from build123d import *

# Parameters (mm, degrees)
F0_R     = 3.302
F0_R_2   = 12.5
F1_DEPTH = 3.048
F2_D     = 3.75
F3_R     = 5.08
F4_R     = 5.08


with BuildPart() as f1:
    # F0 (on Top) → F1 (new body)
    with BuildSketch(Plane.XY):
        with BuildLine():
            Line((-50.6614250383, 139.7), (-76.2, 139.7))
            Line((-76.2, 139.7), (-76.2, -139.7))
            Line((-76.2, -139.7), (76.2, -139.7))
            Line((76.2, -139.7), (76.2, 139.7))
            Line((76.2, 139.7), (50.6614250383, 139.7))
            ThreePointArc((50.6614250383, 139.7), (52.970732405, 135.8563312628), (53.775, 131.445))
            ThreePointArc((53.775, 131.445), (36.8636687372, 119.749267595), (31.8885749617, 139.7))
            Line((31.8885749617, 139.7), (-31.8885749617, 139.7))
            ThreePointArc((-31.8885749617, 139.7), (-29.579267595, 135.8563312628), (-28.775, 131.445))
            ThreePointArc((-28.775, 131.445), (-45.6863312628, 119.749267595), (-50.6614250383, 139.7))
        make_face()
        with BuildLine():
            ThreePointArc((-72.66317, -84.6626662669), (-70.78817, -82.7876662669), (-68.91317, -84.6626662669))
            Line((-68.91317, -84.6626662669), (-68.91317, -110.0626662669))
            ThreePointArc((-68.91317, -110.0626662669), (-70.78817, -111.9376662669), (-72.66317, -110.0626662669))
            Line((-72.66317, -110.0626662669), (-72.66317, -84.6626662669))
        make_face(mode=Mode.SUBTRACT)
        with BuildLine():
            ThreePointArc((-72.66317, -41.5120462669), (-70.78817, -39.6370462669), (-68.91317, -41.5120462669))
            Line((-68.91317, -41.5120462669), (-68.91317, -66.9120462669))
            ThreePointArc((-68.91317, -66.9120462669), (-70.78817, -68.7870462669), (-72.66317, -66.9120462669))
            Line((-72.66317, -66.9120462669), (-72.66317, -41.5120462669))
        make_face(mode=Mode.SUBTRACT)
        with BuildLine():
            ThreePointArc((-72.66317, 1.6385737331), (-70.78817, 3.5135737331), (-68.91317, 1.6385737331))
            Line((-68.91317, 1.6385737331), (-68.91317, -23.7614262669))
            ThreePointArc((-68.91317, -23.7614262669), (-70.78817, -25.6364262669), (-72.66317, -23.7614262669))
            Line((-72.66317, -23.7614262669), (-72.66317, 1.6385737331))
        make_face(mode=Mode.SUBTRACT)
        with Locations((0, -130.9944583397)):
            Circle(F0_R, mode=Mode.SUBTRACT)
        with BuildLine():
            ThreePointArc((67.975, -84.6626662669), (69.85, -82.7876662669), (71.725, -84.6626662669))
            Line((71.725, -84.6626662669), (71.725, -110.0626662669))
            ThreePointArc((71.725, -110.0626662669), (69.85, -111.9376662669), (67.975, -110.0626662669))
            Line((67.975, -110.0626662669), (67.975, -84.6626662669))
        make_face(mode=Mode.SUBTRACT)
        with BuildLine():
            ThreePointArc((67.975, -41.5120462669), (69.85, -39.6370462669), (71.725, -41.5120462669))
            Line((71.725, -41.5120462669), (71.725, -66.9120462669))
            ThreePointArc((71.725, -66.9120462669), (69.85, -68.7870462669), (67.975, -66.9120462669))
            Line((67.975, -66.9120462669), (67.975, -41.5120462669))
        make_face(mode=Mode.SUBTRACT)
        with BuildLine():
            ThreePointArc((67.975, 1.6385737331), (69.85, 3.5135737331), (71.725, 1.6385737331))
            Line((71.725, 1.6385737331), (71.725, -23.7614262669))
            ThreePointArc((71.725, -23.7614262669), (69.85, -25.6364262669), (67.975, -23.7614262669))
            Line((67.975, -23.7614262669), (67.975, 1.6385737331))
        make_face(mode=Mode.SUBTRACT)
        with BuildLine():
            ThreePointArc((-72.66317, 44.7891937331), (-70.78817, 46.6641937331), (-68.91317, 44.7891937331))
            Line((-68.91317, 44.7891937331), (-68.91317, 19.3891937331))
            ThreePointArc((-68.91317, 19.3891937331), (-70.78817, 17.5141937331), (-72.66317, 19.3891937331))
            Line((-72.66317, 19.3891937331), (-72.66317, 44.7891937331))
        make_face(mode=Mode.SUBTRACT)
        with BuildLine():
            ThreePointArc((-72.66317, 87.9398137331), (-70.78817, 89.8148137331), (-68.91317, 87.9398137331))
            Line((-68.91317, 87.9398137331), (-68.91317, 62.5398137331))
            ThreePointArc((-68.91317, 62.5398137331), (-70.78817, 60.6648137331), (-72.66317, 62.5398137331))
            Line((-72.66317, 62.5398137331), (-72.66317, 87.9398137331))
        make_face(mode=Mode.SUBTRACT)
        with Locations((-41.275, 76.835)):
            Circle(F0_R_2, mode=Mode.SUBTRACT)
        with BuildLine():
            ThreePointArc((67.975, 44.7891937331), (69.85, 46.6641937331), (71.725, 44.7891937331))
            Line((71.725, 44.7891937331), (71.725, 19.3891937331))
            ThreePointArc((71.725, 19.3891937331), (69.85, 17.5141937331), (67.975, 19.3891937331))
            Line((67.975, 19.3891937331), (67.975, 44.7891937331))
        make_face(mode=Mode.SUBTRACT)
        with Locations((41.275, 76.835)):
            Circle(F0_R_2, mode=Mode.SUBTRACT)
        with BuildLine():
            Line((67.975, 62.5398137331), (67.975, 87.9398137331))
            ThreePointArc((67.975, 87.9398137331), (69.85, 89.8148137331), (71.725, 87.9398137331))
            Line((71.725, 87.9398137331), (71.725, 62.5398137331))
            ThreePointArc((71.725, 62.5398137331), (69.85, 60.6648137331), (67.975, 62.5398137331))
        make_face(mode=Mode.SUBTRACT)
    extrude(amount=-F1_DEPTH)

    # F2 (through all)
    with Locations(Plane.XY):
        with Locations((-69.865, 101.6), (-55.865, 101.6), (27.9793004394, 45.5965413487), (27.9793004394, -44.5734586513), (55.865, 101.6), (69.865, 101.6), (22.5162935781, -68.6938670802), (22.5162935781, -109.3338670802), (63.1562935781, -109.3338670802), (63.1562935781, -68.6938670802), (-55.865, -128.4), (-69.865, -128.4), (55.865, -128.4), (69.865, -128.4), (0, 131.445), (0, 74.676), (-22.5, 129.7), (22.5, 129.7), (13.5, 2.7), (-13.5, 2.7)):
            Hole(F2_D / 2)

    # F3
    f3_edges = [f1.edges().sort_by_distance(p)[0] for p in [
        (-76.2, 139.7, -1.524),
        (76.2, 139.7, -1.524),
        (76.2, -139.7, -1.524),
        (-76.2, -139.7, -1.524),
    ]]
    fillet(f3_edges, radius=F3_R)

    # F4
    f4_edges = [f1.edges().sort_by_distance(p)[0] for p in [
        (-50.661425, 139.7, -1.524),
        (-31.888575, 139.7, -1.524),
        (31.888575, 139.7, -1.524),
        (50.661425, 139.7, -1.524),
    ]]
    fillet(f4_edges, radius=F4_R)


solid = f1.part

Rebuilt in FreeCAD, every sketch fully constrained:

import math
import FreeCAD as App
import Part
import Sketcher
Q = App.Units.Quantity


def edges_at(feature, points):
    """Names of the edges that pass closest to the given points."""
    edges = feature.Shape.Edges
    near = lambda p: min(range(len(edges)), key=lambda i: edges[i].distToShape(Part.Vertex(*p))[0])
    return sorted({f"Edge{near(p) + 1}" for p in points})

doc = App.newDocument("Part")
body = doc.addObject("PartDesign::Body", "Body")

# Sketch on XY plane
sketch1 = body.newObject("Sketcher::SketchObject", "Sketch")
sketch1.AttachmentSupport = (doc.getObject("XY_Plane"), [""])
sketch1.MapMode = "FlatFace"
sketch1.addGeometry([
    Part.LineSegment(App.Vector(-50.7, 139.7, 0), App.Vector(-76.2, 139.7, 0)),  # 0
    Part.LineSegment(App.Vector(-76.2, 139.7, 0), App.Vector(-76.2, -139.7, 0)),  # 1
    Part.LineSegment(App.Vector(-76.2, -139.7, 0), App.Vector(76.2, -139.7, 0)),  # 2
    Part.LineSegment(App.Vector(76.2, -139.7, 0), App.Vector(76.2, 139.7, 0)),  # 3
    Part.LineSegment(App.Vector(76.2, 139.7, 0), App.Vector(50.7, 139.7, 0)),  # 4
    Part.ArcOfCircle(Part.Circle(App.Vector(41.3, 131.4, 0), App.Vector(0, 0, 1), 12.5), math.radians(0), math.radians(41)),  # 5
    Part.ArcOfCircle(Part.Circle(App.Vector(41.3, 131.4, 0), App.Vector(0, 0, 1), 12.5), math.radians(139), math.radians(360)),  # 6
    Part.LineSegment(App.Vector(31.9, 139.7, 0), App.Vector(-31.9, 139.7, 0)),  # 7
    Part.ArcOfCircle(Part.Circle(App.Vector(-41.3, 131.4, 0), App.Vector(0, 0, 1), 12.5), math.radians(0), math.radians(41)),  # 8
    Part.ArcOfCircle(Part.Circle(App.Vector(-41.3, 131.4, 0), App.Vector(0, 0, 1), 12.5), math.radians(139), math.radians(360)),  # 9
    Part.LineSegment(App.Vector(-72.7, -110.1, 0), App.Vector(-72.7, -84.7, 0)),  # 10
    Part.ArcOfCircle(Part.Circle(App.Vector(-70.8, -84.7, 0), App.Vector(0, 0, 1), 1.9), math.radians(0), math.radians(180)),  # 11
    Part.LineSegment(App.Vector(-68.9, -84.7, 0), App.Vector(-68.9, -110.1, 0)),  # 12
    Part.ArcOfCircle(Part.Circle(App.Vector(-70.8, -110.1, 0), App.Vector(0, 0, 1), 1.9), math.radians(180), math.radians(360)),  # 13
    Part.LineSegment(App.Vector(-72.7, -66.9, 0), App.Vector(-72.7, -41.5, 0)),  # 14
    Part.ArcOfCircle(Part.Circle(App.Vector(-70.8, -41.5, 0), App.Vector(0, 0, 1), 1.9), math.radians(0), math.radians(180)),  # 15
    Part.LineSegment(App.Vector(-68.9, -41.5, 0), App.Vector(-68.9, -66.9, 0)),  # 16
    Part.ArcOfCircle(Part.Circle(App.Vector(-70.8, -66.9, 0), App.Vector(0, 0, 1), 1.9), math.radians(180), math.radians(360)),  # 17
    Part.Circle(App.Vector(0, -131, 0), App.Vector(0, 0, 1), 3.3),  # 18
    Part.LineSegment(App.Vector(68, -110.1, 0), App.Vector(68, -84.7, 0)),  # 19
    Part.ArcOfCircle(Part.Circle(App.Vector(69.8, -84.7, 0), App.Vector(0, 0, 1), 1.9), math.radians(0), math.radians(180)),  # 20
    Part.LineSegment(App.Vector(71.7, -84.7, 0), App.Vector(71.7, -110.1, 0)),  # 21
    Part.ArcOfCircle(Part.Circle(App.Vector(69.8, -110.1, 0), App.Vector(0, 0, 1), 1.9), math.radians(180), math.radians(360)),  # 22
    Part.LineSegment(App.Vector(68, -66.9, 0), App.Vector(68, -41.5, 0)),  # 23
    Part.ArcOfCircle(Part.Circle(App.Vector(69.8, -41.5, 0), App.Vector(0, 0, 1), 1.9), math.radians(0), math.radians(180)),  # 24
    Part.LineSegment(App.Vector(71.7, -41.5, 0), App.Vector(71.7, -66.9, 0)),  # 25
    Part.ArcOfCircle(Part.Circle(App.Vector(69.8, -66.9, 0), App.Vector(0, 0, 1), 1.9), math.radians(180), math.radians(360)),  # 26
    Part.LineSegment(App.Vector(-72.7, -23.8, 0), App.Vector(-72.7, 1.6, 0)),  # 27
    Part.ArcOfCircle(Part.Circle(App.Vector(-70.8, 1.6, 0), App.Vector(0, 0, 1), 1.9), math.radians(0), math.radians(180)),  # 28
    Part.LineSegment(App.Vector(-68.9, 1.6, 0), App.Vector(-68.9, -23.8, 0)),  # 29
    Part.ArcOfCircle(Part.Circle(App.Vector(-70.8, -23.8, 0), App.Vector(0, 0, 1), 1.9), math.radians(180), math.radians(360)),  # 30
    Part.LineSegment(App.Vector(-72.7, 19.4, 0), App.Vector(-72.7, 44.8, 0)),  # 31
    Part.ArcOfCircle(Part.Circle(App.Vector(-70.8, 44.8, 0), App.Vector(0, 0, 1), 1.9), math.radians(0), math.radians(180)),  # 32
    Part.LineSegment(App.Vector(-68.9, 44.8, 0), App.Vector(-68.9, 19.4, 0)),  # 33
    Part.ArcOfCircle(Part.Circle(App.Vector(-70.8, 19.4, 0), App.Vector(0, 0, 1), 1.9), math.radians(180), math.radians(360)),  # 34
    Part.LineSegment(App.Vector(-72.7, 62.5, 0), App.Vector(-72.7, 87.9, 0)),  # 35
    Part.ArcOfCircle(Part.Circle(App.Vector(-70.8, 87.9, 0), App.Vector(0, 0, 1), 1.9), math.radians(0), math.radians(180)),  # 36
    Part.LineSegment(App.Vector(-68.9, 87.9, 0), App.Vector(-68.9, 62.5, 0)),  # 37
    Part.ArcOfCircle(Part.Circle(App.Vector(-70.8, 62.5, 0), App.Vector(0, 0, 1), 1.9), math.radians(180), math.radians(360)),  # 38
    Part.Circle(App.Vector(-41.3, 76.8, 0), App.Vector(0, 0, 1), 12.5),  # 39
    Part.LineSegment(App.Vector(68, -23.8, 0), App.Vector(68, 1.6, 0)),  # 40
    Part.ArcOfCircle(Part.Circle(App.Vector(69.8, 1.6, 0), App.Vector(0, 0, 1), 1.9), math.radians(0), math.radians(180)),  # 41
    Part.LineSegment(App.Vector(71.7, 1.6, 0), App.Vector(71.7, -23.8, 0)),  # 42
    Part.ArcOfCircle(Part.Circle(App.Vector(69.8, -23.8, 0), App.Vector(0, 0, 1), 1.9), math.radians(180), math.radians(360)),  # 43
    Part.LineSegment(App.Vector(68, 19.4, 0), App.Vector(68, 44.8, 0)),  # 44
    Part.ArcOfCircle(Part.Circle(App.Vector(69.8, 44.8, 0), App.Vector(0, 0, 1), 1.9), math.radians(0), math.radians(180)),  # 45
    Part.LineSegment(App.Vector(71.7, 44.8, 0), App.Vector(71.7, 19.4, 0)),  # 46
    Part.ArcOfCircle(Part.Circle(App.Vector(69.8, 19.4, 0), App.Vector(0, 0, 1), 1.9), math.radians(180), math.radians(360)),  # 47
    Part.Circle(App.Vector(41.3, 76.8, 0), App.Vector(0, 0, 1), 12.5),  # 48
    Part.ArcOfCircle(Part.Circle(App.Vector(69.8, 62.5, 0), App.Vector(0, 0, 1), 1.9), math.radians(180), math.radians(360)),  # 49
    Part.LineSegment(App.Vector(68, 62.5, 0), App.Vector(68, 87.9, 0)),  # 50
    Part.ArcOfCircle(Part.Circle(App.Vector(69.8, 87.9, 0), App.Vector(0, 0, 1), 1.9), math.radians(0), math.radians(180)),  # 51
    Part.LineSegment(App.Vector(71.7, 87.9, 0), App.Vector(71.7, 62.5, 0)),  # 52
], False)
sketch1.addConstraint([
    Sketcher.Constraint("Coincident", 0, 2, 1, 1),
    Sketcher.Constraint("Coincident", 1, 2, 2, 1),
    Sketcher.Constraint("Coincident", 2, 2, 3, 1),
    Sketcher.Constraint("Coincident", 3, 2, 4, 1),
    Sketcher.Constraint("Coincident", 4, 2, 5, 2),
    Sketcher.Constraint("Tangent", 5, 1, 6, 2),
    Sketcher.Constraint("Coincident", 6, 1, 7, 1),
    Sketcher.Constraint("Coincident", 7, 2, 8, 2),
    Sketcher.Constraint("Tangent", 8, 1, 9, 2),
    Sketcher.Constraint("Coincident", 9, 1, 0, 1),
    Sketcher.Constraint("Tangent", 10, 2, 11, 2),
    Sketcher.Constraint("Tangent", 11, 1, 12, 1),
    Sketcher.Constraint("Tangent", 12, 2, 13, 2),
    Sketcher.Constraint("Tangent", 13, 1, 10, 1),
    Sketcher.Constraint("Tangent", 14, 2, 15, 2),
    Sketcher.Constraint("Tangent", 15, 1, 16, 1),
    Sketcher.Constraint("Tangent", 16, 2, 17, 2),
    Sketcher.Constraint("Tangent", 17, 1, 14, 1),
    Sketcher.Constraint("Tangent", 19, 2, 20, 2),
    Sketcher.Constraint("Tangent", 20, 1, 21, 1),
    Sketcher.Constraint("Tangent", 21, 2, 22, 2),
    Sketcher.Constraint("Tangent", 22, 1, 19, 1),
    Sketcher.Constraint("Tangent", 23, 2, 24, 2),
    Sketcher.Constraint("Tangent", 24, 1, 25, 1),
    Sketcher.Constraint("Tangent", 25, 2, 26, 2),
    Sketcher.Constraint("Tangent", 26, 1, 23, 1),
    Sketcher.Constraint("Tangent", 27, 2, 28, 2),
    Sketcher.Constraint("Tangent", 28, 1, 29, 1),
    Sketcher.Constraint("Tangent", 29, 2, 30, 2),
    Sketcher.Constraint("Tangent", 30, 1, 27, 1),
    Sketcher.Constraint("Tangent", 31, 2, 32, 2),
    Sketcher.Constraint("Tangent", 32, 1, 33, 1),
    Sketcher.Constraint("Tangent", 33, 2, 34, 2),
    Sketcher.Constraint("Tangent", 34, 1, 31, 1),
    Sketcher.Constraint("Tangent", 35, 2, 36, 2),
    Sketcher.Constraint("Tangent", 36, 1, 37, 1),
    Sketcher.Constraint("Tangent", 37, 2, 38, 2),
    Sketcher.Constraint("Tangent", 38, 1, 35, 1),
    Sketcher.Constraint("Tangent", 40, 2, 41, 2),
    Sketcher.Constraint("Tangent", 41, 1, 42, 1),
    Sketcher.Constraint("Tangent", 42, 2, 43, 2),
    Sketcher.Constraint("Tangent", 43, 1, 40, 1),
    Sketcher.Constraint("Tangent", 44, 2, 45, 2),
    Sketcher.Constraint("Tangent", 45, 1, 46, 1),
    Sketcher.Constraint("Tangent", 46, 2, 47, 2),
    Sketcher.Constraint("Tangent", 47, 1, 44, 1),
    Sketcher.Constraint("Tangent", 49, 1, 50, 1),
    Sketcher.Constraint("Tangent", 50, 2, 51, 2),
    Sketcher.Constraint("Tangent", 51, 1, 52, 1),
    Sketcher.Constraint("Tangent", 52, 2, 49, 2),
    Sketcher.Constraint("Horizontal", 0),
    Sketcher.Constraint("Vertical", 1),
    Sketcher.Constraint("Horizontal", 2),
    Sketcher.Constraint("Vertical", 3),
    Sketcher.Constraint("Horizontal", 4),
    Sketcher.Constraint("Horizontal", 7),
    Sketcher.Constraint("Vertical", 10),
    Sketcher.Constraint("Vertical", 12),
    Sketcher.Constraint("Vertical", 14),
    Sketcher.Constraint("Vertical", 16),
    Sketcher.Constraint("Vertical", 19),
    Sketcher.Constraint("Vertical", 21),
    Sketcher.Constraint("Vertical", 23),
    Sketcher.Constraint("Vertical", 25),
    Sketcher.Constraint("Vertical", 27),
    Sketcher.Constraint("Vertical", 29),
    Sketcher.Constraint("Vertical", 31),
    Sketcher.Constraint("Vertical", 33),
    Sketcher.Constraint("Vertical", 35),
    Sketcher.Constraint("Vertical", 37),
    Sketcher.Constraint("Vertical", 40),
    Sketcher.Constraint("Vertical", 42),
    Sketcher.Constraint("Vertical", 44),
    Sketcher.Constraint("Vertical", 46),
    Sketcher.Constraint("Vertical", 50),
    Sketcher.Constraint("Vertical", 52),
    Sketcher.Constraint("Equal", 5, 6),
    Sketcher.Constraint("Equal", 6, 8),
    Sketcher.Constraint("Equal", 8, 9),
    Sketcher.Constraint("Equal", 13, 15),
    Sketcher.Constraint("Equal", 17, 20),
    Sketcher.Constraint("Equal", 22, 24),
    Sketcher.Constraint("Equal", 26, 28),
    Sketcher.Constraint("Equal", 30, 32),
    Sketcher.Constraint("Equal", 34, 36),
    Sketcher.Constraint("Equal", 9, 39),
    Sketcher.Constraint("Equal", 38, 41),
    Sketcher.Constraint("Equal", 43, 45),
    Sketcher.Constraint("Equal", 39, 48),
    Sketcher.Constraint("Equal", 47, 49),
    Sketcher.Constraint("Symmetric", 0, 2, 2, 2, -1, 1),
    Sketcher.Constraint("Symmetric", 5, 3, 8, 3, -2),
    Sketcher.Constraint("Symmetric", 39, 3, 48, 3, -2),
    Sketcher.Constraint("PointOnObject", 18, 3, -2),
    Sketcher.Constraint("Horizontal", 11, 3, 20, 3),
    Sketcher.Constraint("Horizontal", 13, 3, 22, 3),
    Sketcher.Constraint("Horizontal", 15, 3, 24, 3),
    Sketcher.Constraint("Horizontal", 17, 3, 26, 3),
    Sketcher.Constraint("Horizontal", 28, 3, 41, 3),
    Sketcher.Constraint("Horizontal", 30, 3, 43, 3),
    Sketcher.Constraint("Horizontal", 32, 3, 45, 3),
    Sketcher.Constraint("Horizontal", 34, 3, 47, 3),
    Sketcher.Constraint("Horizontal", 38, 3, 49, 3),
    Sketcher.Constraint("Horizontal", 36, 3, 51, 3),
    Sketcher.Constraint("Horizontal", 0, 2, 3, 2),
    Sketcher.Constraint("Horizontal", 9, 3, 5, 1),
    Sketcher.Constraint("Horizontal", 4, 2, 6, 1),
    Sketcher.Constraint("Horizontal", 5, 1, 8, 1),
    Sketcher.Constraint("Vertical", 13, 3, 15, 3),
    Sketcher.Constraint("Vertical", 22, 3, 24, 3),
    Sketcher.Constraint("Vertical", 17, 3, 28, 3),
    Sketcher.Constraint("Vertical", 30, 3, 32, 3),
    Sketcher.Constraint("Vertical", 34, 3, 36, 3),
    Sketcher.Constraint("Vertical", 9, 3, 39, 3),
    Sketcher.Constraint("Vertical", 26, 3, 41, 3),
    Sketcher.Constraint("Vertical", 43, 3, 45, 3),
    Sketcher.Constraint("Vertical", 47, 3, 49, 3),
    Sketcher.Constraint("Equal", 12, 14),
    Sketcher.Constraint("Equal", 25, 27),
    Sketcher.Constraint("Equal", 29, 31),
    Sketcher.Constraint("Equal", 33, 35),
    Sketcher.Constraint("Diameter", 18, Q("0.26 in")),
    Sketcher.Constraint("DistanceX", 2, 1, 2, 2, Q("6 in")),
    Sketcher.Constraint("DistanceY", 1, 2, 1, 1, Q("11 in")),
    Sketcher.Constraint("DistanceY", 10, 1, 10, 2, Q("1 in")),
    Sketcher.Constraint("Diameter", 39, 25.0),
    Sketcher.Constraint("DistanceX", -1, 1, 20, 3, Q("2.75 in")),
    Sketcher.Constraint("Radius", 11, 1.875),
    Sketcher.Constraint("DistanceX", -1, 1, 5, 3, Q("1.625 in")),
    Sketcher.Constraint("DistanceY", -1, 1, 5, 3, Q("5.175 in")),
    Sketcher.Constraint("DistanceY", -1, 1, 39, 3, Q("3.025 in")),
    Sketcher.Constraint("DistanceX", 11, 3, -1, 1, 70.78817),
    Sketcher.Constraint("DistanceY", 18, 3, -1, 1, 130.994458),
    Sketcher.Constraint("DistanceY", 11, 3, -1, 1, 84.662666),
    Sketcher.Constraint("DistanceY", 15, 3, -1, 1, 41.512046),
    Sketcher.Constraint("DistanceY", -1, 1, 28, 3, 1.638574),
    Sketcher.Constraint("DistanceY", -1, 1, 32, 3, 44.789194),
    Sketcher.Constraint("DistanceY", -1, 1, 36, 3, 87.939814),
])
pad1 = body.newObject("PartDesign::Pad", "Pad")
pad1.Profile = sketch1
pad1.Length = Q("0.12 in")
pad1.Reversed = True

# Sketch on XY plane
sketch2 = body.newObject("Sketcher::SketchObject", "Sketch001")
sketch2.AttachmentSupport = (doc.getObject("XY_Plane"), [""])
sketch2.MapMode = "FlatFace"
sketch2.addGeometry([
    Part.Circle(App.Vector(-69.9, 101.6, 0), App.Vector(0, 0, 1), 1.9),  # 0
    Part.Circle(App.Vector(-55.9, 101.6, 0), App.Vector(0, 0, 1), 1.9),  # 1
    Part.Circle(App.Vector(28, 45.6, 0), App.Vector(0, 0, 1), 1.9),  # 2
    Part.Circle(App.Vector(28, -44.6, 0), App.Vector(0, 0, 1), 1.9),  # 3
    Part.Circle(App.Vector(55.9, 101.6, 0), App.Vector(0, 0, 1), 1.9),  # 4
    Part.Circle(App.Vector(69.9, 101.6, 0), App.Vector(0, 0, 1), 1.9),  # 5
    Part.Circle(App.Vector(22.5, -68.7, 0), App.Vector(0, 0, 1), 1.9),  # 6
    Part.Circle(App.Vector(22.5, -109.3, 0), App.Vector(0, 0, 1), 1.9),  # 7
    Part.Circle(App.Vector(63.2, -109.3, 0), App.Vector(0, 0, 1), 1.9),  # 8
    Part.Circle(App.Vector(63.2, -68.7, 0), App.Vector(0, 0, 1), 1.9),  # 9
    Part.Circle(App.Vector(-55.9, -128.4, 0), App.Vector(0, 0, 1), 1.9),  # 10
    Part.Circle(App.Vector(-69.9, -128.4, 0), App.Vector(0, 0, 1), 1.9),  # 11
    Part.Circle(App.Vector(55.9, -128.4, 0), App.Vector(0, 0, 1), 1.9),  # 12
    Part.Circle(App.Vector(69.9, -128.4, 0), App.Vector(0, 0, 1), 1.9),  # 13
    Part.Circle(App.Vector(0, 131.4, 0), App.Vector(0, 0, 1), 1.9),  # 14
    Part.Circle(App.Vector(0, 74.7, 0), App.Vector(0, 0, 1), 1.9),  # 15
    Part.Circle(App.Vector(-22.5, 129.7, 0), App.Vector(0, 0, 1), 1.9),  # 16
    Part.Circle(App.Vector(22.5, 129.7, 0), App.Vector(0, 0, 1), 1.9),  # 17
    Part.Circle(App.Vector(13.5, 2.7, 0), App.Vector(0, 0, 1), 1.9),  # 18
    Part.Circle(App.Vector(-13.5, 2.7, 0), App.Vector(0, 0, 1), 1.9),  # 19
], False)
sketch2.addConstraint([
    Sketcher.Constraint("Equal", 0, 1),
    Sketcher.Constraint("Equal", 1, 2),
    Sketcher.Constraint("Equal", 2, 3),
    Sketcher.Constraint("Equal", 3, 4),
    Sketcher.Constraint("Equal", 4, 5),
    Sketcher.Constraint("Equal", 5, 6),
    Sketcher.Constraint("Equal", 6, 7),
    Sketcher.Constraint("Equal", 7, 8),
    Sketcher.Constraint("Equal", 8, 9),
    Sketcher.Constraint("Equal", 9, 10),
    Sketcher.Constraint("Equal", 10, 11),
    Sketcher.Constraint("Equal", 11, 12),
    Sketcher.Constraint("Equal", 12, 13),
    Sketcher.Constraint("Equal", 13, 14),
    Sketcher.Constraint("Equal", 14, 15),
    Sketcher.Constraint("Equal", 15, 16),
    Sketcher.Constraint("Equal", 16, 17),
    Sketcher.Constraint("Equal", 17, 18),
    Sketcher.Constraint("Equal", 18, 19),
    Sketcher.Constraint("Symmetric", 1, 3, 4, 3, -2),
    Sketcher.Constraint("Symmetric", 0, 3, 5, 3, -2),
    Sketcher.Constraint("Symmetric", 10, 3, 12, 3, -2),
    Sketcher.Constraint("Symmetric", 11, 3, 13, 3, -2),
    Sketcher.Constraint("Symmetric", 16, 3, 17, 3, -2),
    Sketcher.Constraint("Symmetric", 18, 3, 19, 3, -2),
    Sketcher.Constraint("PointOnObject", 14, 3, -2),
    Sketcher.Constraint("PointOnObject", 15, 3, -2),
    Sketcher.Constraint("Horizontal", 0, 3, 1, 3),
    Sketcher.Constraint("Horizontal", 7, 3, 8, 3),
    Sketcher.Constraint("Horizontal", 6, 3, 9, 3),
    Sketcher.Constraint("Horizontal", 10, 3, 11, 3),
    Sketcher.Constraint("Vertical", 2, 3, 3, 3),
    Sketcher.Constraint("Vertical", 6, 3, 7, 3),
    Sketcher.Constraint("Vertical", 8, 3, 9, 3),
    Sketcher.Constraint("Vertical", 1, 3, 10, 3),
    Sketcher.Constraint("Vertical", 0, 3, 11, 3),
    Sketcher.Constraint("DistanceY", -1, 1, 0, 3, Q("4 in")),
    Sketcher.Constraint("DistanceY", 7, 3, 6, 3, Q("1.6 in")),
    Sketcher.Constraint("DistanceX", 7, 3, 8, 3, Q("1.6 in")),
    Sketcher.Constraint("Diameter", 0, 3.75),
    Sketcher.Constraint("DistanceY", -1, 1, 15, 3, Q("2.94 in")),
    Sketcher.Constraint("DistanceY", 3, 3, 2, 3, Q("3.55 in")),
    Sketcher.Constraint("DistanceX", 0, 3, 4, 3, Q("4.95 in")),
    Sketcher.Constraint("DistanceY", -1, 1, 14, 3, Q("5.175 in")),
    Sketcher.Constraint("DistanceX", 0, 3, -1, 1, 69.865),
    Sketcher.Constraint("DistanceX", -1, 1, 2, 3, 27.9793),
    Sketcher.Constraint("DistanceY", 10, 3, -1, 1, 128.4),
    Sketcher.Constraint("DistanceX", 16, 3, -1, 1, 22.5),
    Sketcher.Constraint("DistanceY", -1, 1, 16, 3, 129.7),
    Sketcher.Constraint("DistanceX", -1, 1, 18, 3, 13.5),
    Sketcher.Constraint("DistanceY", -1, 1, 18, 3, 2.7),
    Sketcher.Constraint("DistanceY", -1, 1, 2, 3, 45.596541),
    Sketcher.Constraint("DistanceY", 6, 3, 3, 3, 24.120408),
    Sketcher.Constraint("DistanceX", -1, 1, 6, 3, 22.516294),
])
doc.recompute()
hole = body.newObject("PartDesign::Hole", "Hole")
hole.Profile = sketch2
hole.ThreadType = "None"
hole.Diameter = 3.75
hole.DepthType = "ThroughAll"
doc.recompute()

fillet = body.newObject("PartDesign::Fillet", "Fillet")
fillet.Base = (hole, edges_at(hole, [
    (-76.2, 139.7, -1.524),
    (76.2, 139.7, -1.524),
    (76.2, -139.7, -1.524),
    (-76.2, -139.7, -1.524),
]))
fillet.Radius = Q("0.2 in")
doc.recompute()

fillet2 = body.newObject("PartDesign::Fillet", "Fillet001")
fillet2.Base = (fillet, edges_at(fillet, [
    (-50.661, 139.7, -1.524),
    (-31.889, 139.7, -1.524),
    (31.889, 139.7, -1.524),
    (50.661, 139.7, -1.524),
]))
fillet2.Radius = Q("0.2 in")

doc.recompute()
